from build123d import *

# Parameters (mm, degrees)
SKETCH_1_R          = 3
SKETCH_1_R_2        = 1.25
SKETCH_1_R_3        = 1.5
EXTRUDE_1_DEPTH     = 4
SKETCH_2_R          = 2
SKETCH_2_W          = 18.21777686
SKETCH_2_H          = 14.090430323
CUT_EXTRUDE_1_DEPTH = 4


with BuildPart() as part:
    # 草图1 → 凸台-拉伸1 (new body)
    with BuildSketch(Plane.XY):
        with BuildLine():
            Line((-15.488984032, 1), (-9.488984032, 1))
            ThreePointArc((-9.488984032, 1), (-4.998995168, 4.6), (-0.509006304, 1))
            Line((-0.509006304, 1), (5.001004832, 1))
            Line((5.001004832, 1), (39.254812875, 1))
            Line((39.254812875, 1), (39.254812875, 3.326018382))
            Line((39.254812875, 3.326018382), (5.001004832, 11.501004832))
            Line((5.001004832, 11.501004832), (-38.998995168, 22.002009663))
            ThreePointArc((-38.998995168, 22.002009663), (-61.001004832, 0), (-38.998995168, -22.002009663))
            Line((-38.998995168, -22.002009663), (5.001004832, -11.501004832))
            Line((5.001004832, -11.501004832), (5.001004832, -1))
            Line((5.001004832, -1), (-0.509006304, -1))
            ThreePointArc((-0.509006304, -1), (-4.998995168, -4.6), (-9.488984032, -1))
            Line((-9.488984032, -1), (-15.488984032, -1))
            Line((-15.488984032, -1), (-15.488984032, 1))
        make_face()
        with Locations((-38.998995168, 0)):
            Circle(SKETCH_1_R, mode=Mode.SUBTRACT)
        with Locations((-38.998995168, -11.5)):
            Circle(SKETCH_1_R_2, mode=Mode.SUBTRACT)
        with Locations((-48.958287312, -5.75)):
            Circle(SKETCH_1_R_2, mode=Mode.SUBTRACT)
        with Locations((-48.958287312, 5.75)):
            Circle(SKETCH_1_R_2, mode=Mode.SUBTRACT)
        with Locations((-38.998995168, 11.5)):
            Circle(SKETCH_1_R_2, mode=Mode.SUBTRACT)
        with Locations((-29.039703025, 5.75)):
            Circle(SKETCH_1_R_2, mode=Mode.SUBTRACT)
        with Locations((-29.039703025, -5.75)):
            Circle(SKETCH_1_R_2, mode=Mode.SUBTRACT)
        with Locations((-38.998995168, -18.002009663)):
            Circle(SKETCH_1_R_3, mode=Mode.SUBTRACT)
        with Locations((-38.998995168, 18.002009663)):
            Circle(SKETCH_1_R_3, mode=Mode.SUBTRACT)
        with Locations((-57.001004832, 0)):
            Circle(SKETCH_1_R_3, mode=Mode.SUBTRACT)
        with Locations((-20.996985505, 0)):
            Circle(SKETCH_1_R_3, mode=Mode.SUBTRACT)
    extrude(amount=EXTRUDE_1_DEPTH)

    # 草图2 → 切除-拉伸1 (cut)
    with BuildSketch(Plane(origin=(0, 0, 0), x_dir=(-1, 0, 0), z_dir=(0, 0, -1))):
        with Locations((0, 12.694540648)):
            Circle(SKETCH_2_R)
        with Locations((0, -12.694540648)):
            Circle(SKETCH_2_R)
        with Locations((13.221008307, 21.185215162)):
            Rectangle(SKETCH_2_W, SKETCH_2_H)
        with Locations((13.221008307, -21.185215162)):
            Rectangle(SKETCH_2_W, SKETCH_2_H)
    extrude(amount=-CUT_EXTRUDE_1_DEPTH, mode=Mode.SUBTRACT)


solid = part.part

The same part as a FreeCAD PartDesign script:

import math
import FreeCAD as App
import Part
import Sketcher
from FreeCAD import Vector


def add_polygon(sketch, points):
    """Adds a closed chain of lines whose ends are joined by coincident constraints."""
    first, n = sketch.GeometryCount, len(points)
    for a, b in zip(points, points[1:] + points[:1]):
        sketch.addGeometry(Part.LineSegment(App.Vector(*a, 0), App.Vector(*b, 0)), False)
    for i in range(n):
        sketch.addConstraint(Sketcher.Constraint("Coincident", first + i, 2, first + (i + 1) % n, 1))

doc = App.newDocument("Part")
params = doc.addObject("Spreadsheet::Sheet", "Params")
for row, (alias, value) in enumerate([
    ("sketch1_diameter", "3 mm"),
    ("sketch1_diameter2", "6 mm"),
    ("sketch1_diameter3", "2.5 mm"),
    ("sketch1_radius", "4.6 mm"),
    ("sketch1_width", "6 mm"),
    ("pad1_length", "4 mm"),
    ("sketch2_diameter", "4 mm"),
    ("pocket1_length", "4 mm"),
], start=1):
    params.set(f"A{row}", alias)
    params.set(f"B{row}", "=" + value)
    params.setAlias(f"B{row}", alias)

body = doc.addObject("PartDesign::Body", "Body")

# Sketch on XY plane
sketch1 = body.newObject("Sketcher::SketchObject", "Sketch")
sketch1.AttachmentSupport = (doc.getObject("XY_Plane"), [""])
sketch1.MapMode = "FlatFace"
sketch1.addGeometry(Part.LineSegment(Vector(-15.5, 1, 0), Vector(-9.5, 1, 0)), False)
sketch1.addGeometry(Part.ArcOfCircle(Part.Circle(Vector(-5, 0, 0), Vector(0, 0, 1), 4.6), math.radians(13), math.radians(167)), False)
sketch1.addGeometry(Part.LineSegment(Vector(-0.5, 1, 0), Vector(39.3, 1, 0)), False)
sketch1.addGeometry(Part.LineSegment(Vector(39.3, 1, 0), Vector(39.3, 3.3, 0)), False)
sketch1.addGeometry(Part.LineSegment(Vector(39.3, 3.3, 0), Vector(5, 11.5, 0)), False)
sketch1.addGeometry(Part.LineSegment(Vector(5, 11.5, 0), Vector(-39, 22, 0)), False)
sketch1.addGeometry(Part.ArcOfCircle(Part.Circle(Vector(-39, 0, 0), Vector(0, 0, 1), 22), math.radians(90), math.radians(270)), False)
sketch1.addGeometry(Part.LineSegment(Vector(-39, -22, 0), Vector(5, -11.5, 0)), False)
sketch1.addGeometry(Part.LineSegment(Vector(5, -11.5, 0), Vector(5, -1, 0)), False)
sketch1.addGeometry(Part.LineSegment(Vector(5, -1, 0), Vector(-0.5, -1, 0)), False)
sketch1.addGeometry(Part.ArcOfCircle(Part.Circle(Vector(-5, 0, 0), Vector(0, 0, 1), 4.6), math.radians(-167), math.radians(-13)), False)
sketch1.addGeometry(Part.LineSegment(Vector(-9.5, -1, 0), Vector(-15.5, -1, 0)), False)
sketch1.addGeometry(Part.LineSegment(Vector(-15.5, -1, 0), Vector(-15.5, 1, 0)), False)
sketch1.addGeometry(Part.Circle(Vector(-49, -5.8, 0), Vector(0, 0, 1), 1.2), False)
sketch1.addGeometry(Part.Circle(Vector(-39, -18, 0), Vector(0, 0, 1), 1.5), False)
sketch1.addGeometry(Part.Circle(Vector(-39, -11.5, 0), Vector(0, 0, 1), 1.2), False)
sketch1.addGeometry(Part.Circle(Vector(-29, -5.8, 0), Vector(0, 0, 1), 1.2), False)
sketch1.addGeometry(Part.Circle(Vector(-57, 0, 0), Vector(0, 0, 1), 1.5), False)
sketch1.addGeometry(Part.Circle(Vector(-49, 5.8, 0), Vector(0, 0, 1), 1.2), False)
sketch1.addGeometry(Part.Circle(Vector(-39, 0, 0), Vector(0, 0, 1), 3), False)
sketch1.addGeometry(Part.Circle(Vector(-21, 0, 0), Vector(0, 0, 1), 1.5), False)
sketch1.addGeometry(Part.Circle(Vector(-29, 5.8, 0), Vector(0, 0, 1), 1.2), False)
sketch1.addGeometry(Part.Circle(Vector(-39, 11.5, 0), Vector(0, 0, 1), 1.2), False)
sketch1.addGeometry(Part.Circle(Vector(-39, 18, 0), Vector(0, 0, 1), 1.5), False)
sketch1.addConstraint(Sketcher.Constraint("Coincident", 0, 2, 1, 2))
sketch1.addConstraint(Sketcher.Constraint("Coincident", 1, 1, 2, 1))
sketch1.addConstraint(Sketcher.Constraint("Coincident", 2, 2, 3, 1))
sketch1.addConstraint(Sketcher.Constraint("Coincident", 3, 2, 4, 1))
sketch1.addConstraint(Sketcher.Constraint("Coincident", 4, 2, 5, 1))
sketch1.addConstraint(Sketcher.Constraint("Coincident", 5, 2, 6, 1))
sketch1.addConstraint(Sketcher.Constraint("Coincident", 6, 2, 7, 1))
sketch1.addConstraint(Sketcher.Constraint("Coincident", 7, 2, 8, 1))
sketch1.addConstraint(Sketcher.Constraint("Coincident", 8, 2, 9, 1))
sketch1.addConstraint(Sketcher.Constraint("Coincident", 9, 2, 10, 2))
sketch1.addConstraint(Sketcher.Constraint("Coincident", 10, 1, 11, 1))
sketch1.addConstraint(Sketcher.Constraint("Coincident", 11, 2, 12, 1))
sketch1.addConstraint(Sketcher.Constraint("Coincident", 12, 2, 0, 1))
sketch1.addConstraint(Sketcher.Constraint("Horizontal", 0))
sketch1.addConstraint(Sketcher.Constraint("Horizontal", 2))
sketch1.addConstraint(Sketcher.Constraint("Vertical", 3))
sketch1.addConstraint(Sketcher.Constraint("Vertical", 8))
sketch1.addConstraint(Sketcher.Constraint("Horizontal", 9))
sketch1.addConstraint(Sketcher.Constraint("Horizontal", 11))
sketch1.addConstraint(Sketcher.Constraint("Vertical", 12))
sketch1.addConstraint(Sketcher.Constraint("Coincident", 10, 3, 1, 3))
sketch1.addConstraint(Sketcher.Constraint("Coincident", 19, 3, 6, 3))
sketch1.addConstraint(Sketcher.Constraint("Equal", 1, 10))
sketch1.addConstraint(Sketcher.Constraint("Equal", 13, 15))
sketch1.addConstraint(Sketcher.Constraint("Equal", 15, 16))
sketch1.addConstraint(Sketcher.Constraint("Equal", 14, 17))
sketch1.addConstraint(Sketcher.Constraint("Equal", 16, 18))
sketch1.addConstraint(Sketcher.Constraint("Equal", 17, 20))
sketch1.addConstraint(Sketcher.Constraint("Equal", 18, 21))
sketch1.addConstraint(Sketcher.Constraint("Equal", 21, 22))
sketch1.addConstraint(Sketcher.Constraint("Equal", 20, 23))
sketch1.addConstraint(Sketcher.Constraint("Symmetric", 13, 3, 18, 3, -1))
sketch1.addConstraint(Sketcher.Constraint("Symmetric", 16, 3, 21, 3, -1))
sketch1.addConstraint(Sketcher.Constraint("Symmetric", 15, 3, 22, 3, -1))
sketch1.addConstraint(Sketcher.Constraint("Symmetric", 14, 3, 23, 3, -1))
sketch1.addConstraint(Sketcher.Constraint("Symmetric", 5, 2, 6, 2, -1))
sketch1.addConstraint(Sketcher.Constraint("Symmetric", 4, 2, 7, 2, -1))
sketch1.addConstraint(Sketcher.Constraint("Symmetric", 1, 1, 9, 2, -1))
sketch1.addConstraint(Sketcher.Constraint("PointOnObject", 17, 3, -1))
sketch1.addConstraint(Sketcher.Constraint("PointOnObject", 20, 3, -1))
sketch1.addConstraint(Sketcher.Constraint("Parallel", 4, 5))
sketch1.addConstraint(Sketcher.Constraint("Horizontal", 13, 3, 16, 3))
sketch1.addConstraint(Sketcher.Constraint("Horizontal", 0, 2, 1, 1))
sketch1.addConstraint(Sketcher.Constraint("Horizontal", 9, 2, 10, 1))
sketch1.addConstraint(Sketcher.Constraint("Vertical", 6, 3, 14, 3))
sketch1.addConstraint(Sketcher.Constraint("Vertical", 14, 3, 15, 3))
sketch1.addConstraint(Sketcher.Constraint("Vertical", 23, 3, 5, 2))
sketch1.addConstraint(Sketcher.Constraint("Diameter", 14, 3.0))
sketch1.addConstraint(Sketcher.Constraint("Diameter", 19, 6.0))
sketch1.addConstraint(Sketcher.Constraint("Diameter", 13, 2.5))
sketch1.addConstraint(Sketcher.Constraint("Radius", 1, 4.6))
sketch1.addConstraint(Sketcher.Constraint("DistanceX", 0, 1, 0, 2, 6.0))
sketch1.addConstraint(Sketcher.Constraint("DistanceY", 12, 1, 12, 2, 2.0))
sketch1.addConstraint(Sketcher.Constraint("DistanceX", 6, 3, 1, 3, 34.0))
sketch1.addConstraint(Sketcher.Constraint("DistanceX", 1, 3, 4, 2, 10.0))
sketch1.addConstraint(Sketcher.Constraint("DistanceY", 23, 3, 5, 2, 4.0))
sketch1.addConstraint(Sketcher.Constraint("DistanceY", 15, 3, -1, 1, 11.5))
sketch1.addConstraint(Sketcher.Constraint("DistanceY", 13, 3, 18, 3, 11.5))
sketch1.addConstraint(Sketcher.Constraint("Radius", 6, 22.00201))
sketch1.addConstraint(Sketcher.Constraint("DistanceX", 20, 3, 0, 2, 11.508001))
sketch1.addConstraint(Sketcher.Constraint("DistanceX", 2, 1, 2, 2, 39.763819))
sketch1.addConstraint(Sketcher.Constraint("DistanceY", 3, 1, 3, 2, 2.326018))
sketch1.addConstraint(Sketcher.Constraint("DistanceX", 17, 3, 16, 3, 27.961302))
sketch1.addConstraint(Sketcher.Constraint("DistanceX", 17, 3, 6, 3, 18.00201))
sketch1.addConstraint(Sketcher.Constraint("DistanceX", 1, 3, -1, 1, 4.998995))
sketch1.addConstraint(Sketcher.Constraint("DistanceX", 13, 3, -1, 1, 48.958287))
sketch1.setExpression("Constraints[47]", "Params.sketch1_diameter")
sketch1.setExpression("Constraints[48]", "Params.sketch1_diameter2")
sketch1.setExpression("Constraints[49]", "Params.sketch1_diameter3")
sketch1.setExpression("Constraints[50]", "Params.sketch1_radius")
sketch1.setExpression("Constraints[51]", "Params.sketch1_width")
pad1 = body.newObject("PartDesign::Pad", "Pad")
pad1.Profile = sketch1
pad1.setExpression("Length", "Params.pad1_length")

# Sketch on XY plane
sketch2 = body.newObject("Sketcher::SketchObject", "Sketch001")
sketch2.AttachmentSupport = (doc.getObject("XY_Plane"), [""])
sketch2.MapMode = "FlatFace"
sketch2.addGeometry(Part.Circle(Vector(0, 12.7, 0), Vector(0, 0, 1), 2), False)  # 0
sketch2.addGeometry(Part.Circle(Vector(0, -12.7, 0), Vector(0, 0, 1), 2), False)  # 1
add_polygon(sketch2, [(-4.1, 28.2), (-4.1, 14.1), (-22.3, 14.1), (-22.3, 28.2)])  # lines 2-5
add_polygon(sketch2, [(-4.1, -14.1), (-4.1, -28.2), (-22.3, -28.2), (-22.3, -14.1)])  # lines 6-9
sketch2.addConstraint(Sketcher.Constraint("Vertical", 2))
sketch2.addConstraint(Sketcher.Constraint("Horizontal", 3))
sketch2.addConstraint(Sketcher.Constraint("Vertical", 4))
sketch2.addConstraint(Sketcher.Constraint("Horizontal", 5))
sketch2.addConstraint(Sketcher.Constraint("Vertical", 6))
sketch2.addConstraint(Sketcher.Constraint("Horizontal", 7))
sketch2.addConstraint(Sketcher.Constraint("Vertical", 8))
sketch2.addConstraint(Sketcher.Constraint("Horizontal", 9))
sketch2.addConstraint(Sketcher.Constraint("Equal", 0, 1))
sketch2.addConstraint(Sketcher.Constraint("Symmetric", 0, 3, 1, 3, -1, 1))
sketch2.addConstraint(Sketcher.Constraint("Symmetric", 5, 2, 6, 2, -1))
sketch2.addConstraint(Sketcher.Constraint("Symmetric", 3, 2, 8, 2, -1))
sketch2.addConstraint(Sketcher.Constraint("PointOnObject", 0, 3, -2))
sketch2.addConstraint(Sketcher.Constraint("Diameter", 0, 4.0))
sketch2.addConstraint(Sketcher.Constraint("DistanceY", -1, 1, 2, 2, 14.14))
sketch2.addConstraint(Sketcher.Constraint("DistanceY", 2, 2, 2, 1, 14.09043))
sketch2.addConstraint(Sketcher.Constraint("DistanceX", 3, 2, 3, 1, 18.217777))
sketch2.addConstraint(Sketcher.Constraint("DistanceY", -1, 1, 0, 3, 12.694541))
sketch2.addConstraint(Sketcher.Constraint("DistanceX", 2, 2, -1, 1, 4.11212))
sketch2.setExpression("Constraints[21]", "Params.sketch2_diameter")
pocket1 = body.newObject("PartDesign::Pocket", "Pocket")
pocket1.Profile = sketch2
pocket1.setExpression("Length", "Params.pocket1_length")
pocket1.Reversed = True

doc.recompute()
